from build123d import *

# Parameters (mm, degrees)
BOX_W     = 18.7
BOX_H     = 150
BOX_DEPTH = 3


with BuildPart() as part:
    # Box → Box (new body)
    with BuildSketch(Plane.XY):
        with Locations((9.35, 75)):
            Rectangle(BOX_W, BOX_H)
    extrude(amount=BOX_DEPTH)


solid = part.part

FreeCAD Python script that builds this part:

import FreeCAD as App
import Part
import Sketcher


def add_polygon(sketch, points):
    """Adds a closed chain of lines whose ends are joined by coincident constraints."""
    first, n = sketch.GeometryCount, len(points)
    for a, b in zip(points, points[1:] + points[:1]):
        sketch.addGeometry(Part.LineSegment(App.Vector(*a, 0), App.Vector(*b, 0)), False)
    for i in range(n):
        sketch.addConstraint(Sketcher.Constraint("Coincident", first + i, 2, first + (i + 1) % n, 1))

doc = App.newDocument("Part")
body = doc.addObject("PartDesign::Body", "Body")

# Sketch on XY plane
sketch1 = doc.addObject("Sketcher::SketchObject", "Sketch")
body.addObject(sketch1)
sketch1.AttachmentSupport = (doc.XY_Plane, [""])
sketch1.MapMode = "FlatFace"
add_polygon(sketch1, [(0, 150), (0, 0), (18.7, 0), (18.7, 150)])  # lines 0-3
sketch1.addConstraint([
    Sketcher.Constraint("Vertical", 0),
    Sketcher.Constraint("Horizontal", 1),
    Sketcher.Constraint("Vertical", 2),
    Sketcher.Constraint("Horizontal", 3),
    Sketcher.Constraint("Coincident", 0, 2, -1, 1),
    Sketcher.Constraint("DistanceY", 0, 2, 0, 1, 150.0),
    Sketcher.Constraint("DistanceX", 1, 1, 1, 2, 18.7),
])
pad1 = doc.addObject("PartDesign::Pad", "Pad")
body.addObject(pad1)
pad1.Profile = sketch1
pad1.Length = 3

doc.recompute()
